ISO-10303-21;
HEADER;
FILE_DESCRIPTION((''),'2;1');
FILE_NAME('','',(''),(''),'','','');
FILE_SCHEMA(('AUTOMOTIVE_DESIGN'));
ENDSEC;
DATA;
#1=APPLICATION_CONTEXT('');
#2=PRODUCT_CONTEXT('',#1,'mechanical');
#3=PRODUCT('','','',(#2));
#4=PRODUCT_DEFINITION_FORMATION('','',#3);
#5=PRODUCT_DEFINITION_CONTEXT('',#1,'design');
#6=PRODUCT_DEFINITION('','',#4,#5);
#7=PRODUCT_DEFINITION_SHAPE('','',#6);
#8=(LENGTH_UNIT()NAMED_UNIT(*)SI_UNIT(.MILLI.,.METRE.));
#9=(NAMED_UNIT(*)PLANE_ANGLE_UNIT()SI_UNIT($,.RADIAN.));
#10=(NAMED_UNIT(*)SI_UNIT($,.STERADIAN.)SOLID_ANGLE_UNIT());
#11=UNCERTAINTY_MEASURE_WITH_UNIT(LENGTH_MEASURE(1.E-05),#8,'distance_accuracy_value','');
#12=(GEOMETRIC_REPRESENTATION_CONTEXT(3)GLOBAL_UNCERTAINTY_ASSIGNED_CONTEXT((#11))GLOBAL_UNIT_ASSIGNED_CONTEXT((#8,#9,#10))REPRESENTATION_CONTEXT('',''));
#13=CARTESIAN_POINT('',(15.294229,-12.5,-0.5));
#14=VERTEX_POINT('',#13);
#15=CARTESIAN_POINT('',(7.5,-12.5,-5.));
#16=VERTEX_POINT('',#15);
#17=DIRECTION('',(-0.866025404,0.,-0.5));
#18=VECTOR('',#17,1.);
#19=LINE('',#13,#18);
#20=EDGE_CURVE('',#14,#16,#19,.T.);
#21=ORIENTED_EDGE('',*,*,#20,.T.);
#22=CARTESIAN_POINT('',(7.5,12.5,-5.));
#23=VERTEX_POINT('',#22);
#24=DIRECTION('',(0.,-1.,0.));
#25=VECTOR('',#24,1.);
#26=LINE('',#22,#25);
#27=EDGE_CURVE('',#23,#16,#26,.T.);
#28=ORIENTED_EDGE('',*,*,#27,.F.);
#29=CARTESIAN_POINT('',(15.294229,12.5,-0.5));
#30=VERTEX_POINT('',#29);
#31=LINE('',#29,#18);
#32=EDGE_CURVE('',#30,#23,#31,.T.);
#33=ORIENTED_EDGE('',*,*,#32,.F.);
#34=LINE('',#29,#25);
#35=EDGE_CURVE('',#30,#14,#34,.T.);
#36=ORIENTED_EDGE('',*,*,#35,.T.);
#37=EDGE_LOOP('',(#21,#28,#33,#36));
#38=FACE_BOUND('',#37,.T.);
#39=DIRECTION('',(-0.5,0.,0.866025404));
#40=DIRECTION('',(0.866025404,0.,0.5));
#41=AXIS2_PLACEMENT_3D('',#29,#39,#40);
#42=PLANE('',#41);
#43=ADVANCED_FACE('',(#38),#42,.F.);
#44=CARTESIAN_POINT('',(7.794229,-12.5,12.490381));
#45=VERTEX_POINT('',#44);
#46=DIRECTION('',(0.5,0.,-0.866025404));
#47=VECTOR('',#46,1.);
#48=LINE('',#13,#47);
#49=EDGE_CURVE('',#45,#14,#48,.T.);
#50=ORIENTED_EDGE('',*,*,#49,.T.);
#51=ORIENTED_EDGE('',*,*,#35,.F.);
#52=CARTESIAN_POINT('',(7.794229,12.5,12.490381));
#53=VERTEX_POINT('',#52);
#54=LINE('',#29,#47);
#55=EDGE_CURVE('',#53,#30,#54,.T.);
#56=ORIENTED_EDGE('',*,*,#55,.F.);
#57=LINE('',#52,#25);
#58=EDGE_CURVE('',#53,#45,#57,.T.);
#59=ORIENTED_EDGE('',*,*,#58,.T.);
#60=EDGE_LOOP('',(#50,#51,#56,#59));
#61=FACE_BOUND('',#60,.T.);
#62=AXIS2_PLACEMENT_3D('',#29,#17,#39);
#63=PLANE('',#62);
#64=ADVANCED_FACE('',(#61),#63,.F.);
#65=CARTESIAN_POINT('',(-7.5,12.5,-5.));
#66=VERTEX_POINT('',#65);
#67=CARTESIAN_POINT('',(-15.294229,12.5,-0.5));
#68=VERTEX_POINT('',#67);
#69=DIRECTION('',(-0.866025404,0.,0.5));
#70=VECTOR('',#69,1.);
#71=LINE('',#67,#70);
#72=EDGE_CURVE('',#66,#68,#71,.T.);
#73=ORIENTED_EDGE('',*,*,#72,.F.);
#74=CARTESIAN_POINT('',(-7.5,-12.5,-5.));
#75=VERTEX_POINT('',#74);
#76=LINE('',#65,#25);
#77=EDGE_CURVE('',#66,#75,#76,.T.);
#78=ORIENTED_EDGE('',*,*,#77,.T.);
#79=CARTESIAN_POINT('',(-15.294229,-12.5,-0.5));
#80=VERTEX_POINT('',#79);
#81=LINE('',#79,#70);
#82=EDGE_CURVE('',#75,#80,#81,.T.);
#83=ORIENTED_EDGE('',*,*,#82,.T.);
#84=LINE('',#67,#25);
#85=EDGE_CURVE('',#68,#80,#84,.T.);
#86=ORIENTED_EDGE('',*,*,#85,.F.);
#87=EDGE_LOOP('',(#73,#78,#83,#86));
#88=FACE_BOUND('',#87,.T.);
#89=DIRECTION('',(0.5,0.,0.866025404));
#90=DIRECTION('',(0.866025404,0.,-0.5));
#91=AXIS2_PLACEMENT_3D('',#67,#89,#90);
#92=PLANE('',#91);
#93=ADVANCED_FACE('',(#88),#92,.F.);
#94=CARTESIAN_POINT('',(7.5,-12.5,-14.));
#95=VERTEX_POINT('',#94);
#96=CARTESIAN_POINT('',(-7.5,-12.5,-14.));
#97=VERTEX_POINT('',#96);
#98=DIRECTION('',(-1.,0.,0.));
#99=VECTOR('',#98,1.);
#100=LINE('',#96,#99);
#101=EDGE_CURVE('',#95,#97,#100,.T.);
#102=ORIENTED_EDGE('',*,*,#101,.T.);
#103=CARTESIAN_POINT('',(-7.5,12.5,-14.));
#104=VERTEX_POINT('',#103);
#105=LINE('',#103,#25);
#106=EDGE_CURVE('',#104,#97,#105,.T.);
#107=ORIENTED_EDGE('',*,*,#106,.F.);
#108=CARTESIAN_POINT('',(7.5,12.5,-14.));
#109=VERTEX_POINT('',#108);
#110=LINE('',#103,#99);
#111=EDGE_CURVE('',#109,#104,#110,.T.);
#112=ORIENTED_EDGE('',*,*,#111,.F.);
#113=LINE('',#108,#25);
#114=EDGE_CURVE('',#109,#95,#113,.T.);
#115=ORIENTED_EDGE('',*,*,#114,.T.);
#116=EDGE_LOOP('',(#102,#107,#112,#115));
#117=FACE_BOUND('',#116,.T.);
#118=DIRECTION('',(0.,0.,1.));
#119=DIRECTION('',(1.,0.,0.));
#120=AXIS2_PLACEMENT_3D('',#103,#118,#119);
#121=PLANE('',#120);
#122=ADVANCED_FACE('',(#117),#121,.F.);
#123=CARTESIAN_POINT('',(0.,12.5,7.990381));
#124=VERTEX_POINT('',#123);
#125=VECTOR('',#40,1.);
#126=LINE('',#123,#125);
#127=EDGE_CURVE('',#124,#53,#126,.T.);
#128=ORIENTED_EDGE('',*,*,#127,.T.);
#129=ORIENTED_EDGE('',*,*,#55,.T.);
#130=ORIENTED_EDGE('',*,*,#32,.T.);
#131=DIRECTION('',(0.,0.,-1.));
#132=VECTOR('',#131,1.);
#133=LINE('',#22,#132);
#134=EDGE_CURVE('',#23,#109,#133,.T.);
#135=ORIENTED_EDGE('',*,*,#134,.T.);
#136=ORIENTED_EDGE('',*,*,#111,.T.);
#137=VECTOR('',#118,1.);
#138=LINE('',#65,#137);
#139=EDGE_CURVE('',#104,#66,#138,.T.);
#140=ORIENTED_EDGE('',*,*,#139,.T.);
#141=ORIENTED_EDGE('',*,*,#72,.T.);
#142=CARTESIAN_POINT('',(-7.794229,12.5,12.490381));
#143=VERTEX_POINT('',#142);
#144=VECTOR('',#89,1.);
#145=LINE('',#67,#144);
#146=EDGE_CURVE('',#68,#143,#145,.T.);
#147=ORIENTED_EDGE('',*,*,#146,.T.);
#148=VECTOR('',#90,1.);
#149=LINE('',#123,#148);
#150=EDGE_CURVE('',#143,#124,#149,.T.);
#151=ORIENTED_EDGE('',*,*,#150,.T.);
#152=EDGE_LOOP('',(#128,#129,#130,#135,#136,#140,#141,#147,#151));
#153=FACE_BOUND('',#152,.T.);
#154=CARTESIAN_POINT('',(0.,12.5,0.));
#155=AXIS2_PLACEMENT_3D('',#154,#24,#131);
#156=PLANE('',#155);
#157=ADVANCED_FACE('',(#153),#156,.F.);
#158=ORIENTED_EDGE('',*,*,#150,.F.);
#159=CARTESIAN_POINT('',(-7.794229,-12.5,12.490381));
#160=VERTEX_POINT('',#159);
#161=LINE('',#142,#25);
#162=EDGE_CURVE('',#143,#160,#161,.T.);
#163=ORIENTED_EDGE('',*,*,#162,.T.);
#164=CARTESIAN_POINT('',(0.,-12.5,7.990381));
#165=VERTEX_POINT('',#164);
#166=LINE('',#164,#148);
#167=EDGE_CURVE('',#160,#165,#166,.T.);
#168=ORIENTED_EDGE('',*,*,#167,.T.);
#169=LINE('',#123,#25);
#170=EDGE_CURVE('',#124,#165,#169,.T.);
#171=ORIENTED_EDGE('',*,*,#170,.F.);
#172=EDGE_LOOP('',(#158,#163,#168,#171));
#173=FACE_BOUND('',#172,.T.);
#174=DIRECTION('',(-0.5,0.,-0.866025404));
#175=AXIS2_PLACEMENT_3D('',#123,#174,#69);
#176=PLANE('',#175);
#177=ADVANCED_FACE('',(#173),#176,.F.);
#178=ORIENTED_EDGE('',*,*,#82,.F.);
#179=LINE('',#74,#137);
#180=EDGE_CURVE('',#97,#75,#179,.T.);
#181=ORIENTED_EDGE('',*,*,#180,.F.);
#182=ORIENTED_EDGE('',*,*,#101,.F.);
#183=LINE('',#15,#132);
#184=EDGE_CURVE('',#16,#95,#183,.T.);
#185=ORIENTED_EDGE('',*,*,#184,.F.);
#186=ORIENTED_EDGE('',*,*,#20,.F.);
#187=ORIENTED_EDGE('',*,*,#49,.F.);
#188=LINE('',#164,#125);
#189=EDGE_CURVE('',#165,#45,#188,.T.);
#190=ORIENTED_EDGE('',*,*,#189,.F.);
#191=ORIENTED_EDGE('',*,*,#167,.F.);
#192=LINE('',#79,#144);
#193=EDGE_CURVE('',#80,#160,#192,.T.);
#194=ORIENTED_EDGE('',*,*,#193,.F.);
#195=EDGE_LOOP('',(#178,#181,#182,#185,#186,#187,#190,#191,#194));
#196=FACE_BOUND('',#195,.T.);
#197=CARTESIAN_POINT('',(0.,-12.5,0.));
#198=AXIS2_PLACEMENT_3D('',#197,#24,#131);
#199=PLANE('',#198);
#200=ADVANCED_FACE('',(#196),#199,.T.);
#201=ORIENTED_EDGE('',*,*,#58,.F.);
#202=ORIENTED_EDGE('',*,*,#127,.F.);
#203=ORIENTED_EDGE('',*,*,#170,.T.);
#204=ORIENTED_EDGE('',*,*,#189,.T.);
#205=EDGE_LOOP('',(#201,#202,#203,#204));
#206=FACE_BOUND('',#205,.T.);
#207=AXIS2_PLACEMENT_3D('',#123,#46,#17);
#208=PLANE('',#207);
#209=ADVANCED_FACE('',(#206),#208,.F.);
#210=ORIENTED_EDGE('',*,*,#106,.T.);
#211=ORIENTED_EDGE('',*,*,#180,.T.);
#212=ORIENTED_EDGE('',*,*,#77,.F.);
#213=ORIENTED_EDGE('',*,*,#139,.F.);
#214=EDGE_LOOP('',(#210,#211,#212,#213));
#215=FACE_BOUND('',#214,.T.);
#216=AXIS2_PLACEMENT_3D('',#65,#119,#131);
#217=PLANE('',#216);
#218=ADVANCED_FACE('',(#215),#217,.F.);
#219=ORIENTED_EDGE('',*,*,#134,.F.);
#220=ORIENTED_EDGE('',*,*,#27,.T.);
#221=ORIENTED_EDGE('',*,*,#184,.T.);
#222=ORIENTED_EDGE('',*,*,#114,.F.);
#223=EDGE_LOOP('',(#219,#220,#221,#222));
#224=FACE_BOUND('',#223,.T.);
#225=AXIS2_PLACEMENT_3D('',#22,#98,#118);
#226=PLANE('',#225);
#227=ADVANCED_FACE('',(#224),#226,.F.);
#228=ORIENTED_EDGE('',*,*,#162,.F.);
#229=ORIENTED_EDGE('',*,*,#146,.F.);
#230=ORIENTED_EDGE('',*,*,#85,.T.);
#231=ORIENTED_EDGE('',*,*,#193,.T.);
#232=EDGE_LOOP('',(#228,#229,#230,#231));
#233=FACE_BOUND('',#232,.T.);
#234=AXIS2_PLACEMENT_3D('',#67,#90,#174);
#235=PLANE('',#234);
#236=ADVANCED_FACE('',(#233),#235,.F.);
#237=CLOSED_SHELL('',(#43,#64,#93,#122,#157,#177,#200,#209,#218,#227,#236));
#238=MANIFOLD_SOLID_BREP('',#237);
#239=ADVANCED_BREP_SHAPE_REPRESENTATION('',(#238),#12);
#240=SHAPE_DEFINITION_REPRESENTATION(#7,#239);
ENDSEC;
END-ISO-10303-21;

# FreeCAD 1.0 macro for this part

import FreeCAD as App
import Part
import Sketcher
Q = App.Units.Quantity

doc = App.newDocument("Part")
body = doc.addObject("PartDesign::Body", "Body")

# Sketch on XZ plane
sketch1 = doc.addObject("Sketcher::SketchObject", "Sketch")
body.addObject(sketch1)
sketch1.AttachmentSupport = (doc.XZ_Plane, [""])
sketch1.MapMode = "FlatFace"
sketch1.addGeometry([
    Part.LineSegment(App.Vector(15, 0, 0), App.Vector(8, -5, 0)),  # 0
    Part.LineSegment(App.Vector(8, -5, 0), App.Vector(8, -14, 0)),  # 1
    Part.LineSegment(App.Vector(8, -14, 0), App.Vector(-8, -14, 0)),  # 2
    Part.LineSegment(App.Vector(-8, -14, 0), App.Vector(-8, -5, 0)),  # 3
    Part.LineSegment(App.Vector(-8, -5, 0), App.Vector(-15, 0, 0)),  # 4
    Part.LineSegment(App.Vector(-15, 0, 0), App.Vector(-8, 12, 0)),  # 5
    Part.LineSegment(App.Vector(-8, 12, 0), App.Vector(0, 8, 0)),  # 6
    Part.LineSegment(App.Vector(0, 8, 0), App.Vector(8, 12, 0)),  # 7
    Part.LineSegment(App.Vector(8, 12, 0), App.Vector(15, 0, 0)),  # 8
], False)
sketch1.addConstraint([
    Sketcher.Constraint("Coincident", 0, 2, 1, 1),
    Sketcher.Constraint("Coincident", 1, 2, 2, 1),
    Sketcher.Constraint("Coincident", 2, 2, 3, 1),
    Sketcher.Constraint("Coincident", 3, 2, 4, 1),
    Sketcher.Constraint("Coincident", 4, 2, 5, 1),
    Sketcher.Constraint("Coincident", 5, 2, 6, 1),
    Sketcher.Constraint("Coincident", 6, 2, 7, 1),
    Sketcher.Constraint("Coincident", 7, 2, 8, 1),
    Sketcher.Constraint("Coincident", 8, 2, 0, 1),
    Sketcher.Constraint("Vertical", 1),
    Sketcher.Constraint("Horizontal", 2),
    Sketcher.Constraint("Vertical", 3),
    Sketcher.Constraint("Symmetric", 0, 2, 3, 2, -2),
    Sketcher.Constraint("Symmetric", 5, 2, 7, 2, -2),
    Sketcher.Constraint("Symmetric", 4, 2, 8, 2, -2),
    Sketcher.Constraint("PointOnObject", 6, 2, -2),
    Sketcher.Constraint("Perpendicular", 4, 5),
    Sketcher.Constraint("Perpendicular", 5, 6),
    Sketcher.Constraint("Equal", 4, 6),
    Sketcher.Constraint("DistanceX", 2, 2, 2, 1, 15.0),
    Sketcher.Constraint("DistanceY", 1, 2, 1, 1, 9.0),
    Sketcher.Constraint("Angle", 0, Q("-150 deg")),
    Sketcher.Constraint("Distance", 0, 9.0),
    Sketcher.Constraint("DistanceY", 0, 2, -1, 1, 5.0),
])
pad1 = doc.addObject("PartDesign::Pad", "Pad")
body.addObject(pad1)
pad1.Profile = sketch1
pad1.Length = 25
pad1.Midplane = True

doc.recompute()
